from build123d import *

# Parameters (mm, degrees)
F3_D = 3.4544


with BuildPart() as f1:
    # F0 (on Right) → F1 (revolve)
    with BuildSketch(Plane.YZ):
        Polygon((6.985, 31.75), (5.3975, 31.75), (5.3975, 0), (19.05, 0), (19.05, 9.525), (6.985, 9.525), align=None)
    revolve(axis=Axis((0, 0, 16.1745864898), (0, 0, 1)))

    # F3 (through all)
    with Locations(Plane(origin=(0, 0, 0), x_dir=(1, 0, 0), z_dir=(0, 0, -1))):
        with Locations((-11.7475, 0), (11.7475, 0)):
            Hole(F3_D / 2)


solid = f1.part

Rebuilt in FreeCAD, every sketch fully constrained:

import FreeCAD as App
import Part
import Sketcher
from FreeCAD import Vector
Q = App.Units.Quantity

doc = App.newDocument("Part")
body = doc.addObject("PartDesign::Body", "Body")

sketch1 = body.newObject("Sketcher::SketchObject", "Sketch")
sketch1.AttachmentSupport = (doc.getObject("YZ_Plane"), [""])
sketch1.MapMode = "FlatFace"
sketch1.addGeometry(Part.LineSegment(Vector(7, 31.8, 0), Vector(5.4, 31.8, 0)), False)
sketch1.addGeometry(Part.LineSegment(Vector(5.4, 31.8, 0), Vector(5.4, 0, 0)), False)
sketch1.addGeometry(Part.LineSegment(Vector(5.4, 0, 0), Vector(19.1, 0, 0)), False)
sketch1.addGeometry(Part.LineSegment(Vector(19.1, 0, 0), Vector(19.1, 9.5, 0)), False)
sketch1.addGeometry(Part.LineSegment(Vector(19.1, 9.5, 0), Vector(7, 9.5, 0)), False)
sketch1.addGeometry(Part.LineSegment(Vector(7, 9.5, 0), Vector(7, 31.8, 0)), False)
sketch1.addConstraint(Sketcher.Constraint("Coincident", 0, 2, 1, 1))
sketch1.addConstraint(Sketcher.Constraint("Coincident", 1, 2, 2, 1))
sketch1.addConstraint(Sketcher.Constraint("Coincident", 2, 2, 3, 1))
sketch1.addConstraint(Sketcher.Constraint("Coincident", 3, 2, 4, 1))
sketch1.addConstraint(Sketcher.Constraint("Coincident", 4, 2, 5, 1))
sketch1.addConstraint(Sketcher.Constraint("Coincident", 5, 2, 0, 1))
sketch1.addConstraint(Sketcher.Constraint("Horizontal", 0))
sketch1.addConstraint(Sketcher.Constraint("Vertical", 1))
sketch1.addConstraint(Sketcher.Constraint("Horizontal", 2))
sketch1.addConstraint(Sketcher.Constraint("Vertical", 3))
sketch1.addConstraint(Sketcher.Constraint("Horizontal", 4))
sketch1.addConstraint(Sketcher.Constraint("Vertical", 5))
sketch1.addConstraint(Sketcher.Constraint("PointOnObject", 1, 2, -1))
sketch1.addConstraint(Sketcher.Constraint("DistanceY", 1, 2, 1, 1, Q("1.25 in")))
sketch1.addConstraint(Sketcher.Constraint("DistanceX", 0, 2, 0, 1, Q("0.0625 in")))
sketch1.addConstraint(Sketcher.Constraint("DistanceX", 4, 2, 4, 1, Q("0.475 in")))
sketch1.addConstraint(Sketcher.Constraint("DistanceY", 3, 1, 3, 2, Q("0.375 in")))
sketch1.addConstraint(Sketcher.Constraint("DistanceX", -1, 1, 2, 2, Q("0.75 in")))
revolution = body.newObject("PartDesign::Revolution", "Revolution")
revolution.Profile = sketch1
revolution.ReferenceAxis = (sketch1, ["V_Axis"])
revolution.Angle = 360

sketch2 = body.newObject("Sketcher::SketchObject", "Sketch001")
sketch2.AttachmentSupport = (doc.getObject("XY_Plane"), [""])
sketch2.MapMode = "FlatFace"
sketch2.addGeometry(Part.Circle(Vector(-11.7, 0, 0), Vector(0, 0, 1), 1.7), False)
sketch2.addGeometry(Part.Circle(Vector(11.7, 0, 0), Vector(0, 0, 1), 1.7), False)
sketch2.addConstraint(Sketcher.Constraint("Equal", 0, 1))
sketch2.addConstraint(Sketcher.Constraint("Symmetric", 0, 3, 1, 3, -1, 1))
sketch2.addConstraint(Sketcher.Constraint("PointOnObject", 0, 3, -1))
sketch2.addConstraint(Sketcher.Constraint("Diameter", 0, Q("0.136 in")))
sketch2.addConstraint(Sketcher.Constraint("DistanceX", 0, 3, 1, 3, Q("0.925 in")))
doc.recompute()
hole = body.newObject("PartDesign::Hole", "Hole")
hole.Profile = sketch2
hole.ThreadType = "None"
hole.Diameter = Q("0.136 in")
hole.DepthType = "ThroughAll"
hole.Reversed = True

doc.recompute()
